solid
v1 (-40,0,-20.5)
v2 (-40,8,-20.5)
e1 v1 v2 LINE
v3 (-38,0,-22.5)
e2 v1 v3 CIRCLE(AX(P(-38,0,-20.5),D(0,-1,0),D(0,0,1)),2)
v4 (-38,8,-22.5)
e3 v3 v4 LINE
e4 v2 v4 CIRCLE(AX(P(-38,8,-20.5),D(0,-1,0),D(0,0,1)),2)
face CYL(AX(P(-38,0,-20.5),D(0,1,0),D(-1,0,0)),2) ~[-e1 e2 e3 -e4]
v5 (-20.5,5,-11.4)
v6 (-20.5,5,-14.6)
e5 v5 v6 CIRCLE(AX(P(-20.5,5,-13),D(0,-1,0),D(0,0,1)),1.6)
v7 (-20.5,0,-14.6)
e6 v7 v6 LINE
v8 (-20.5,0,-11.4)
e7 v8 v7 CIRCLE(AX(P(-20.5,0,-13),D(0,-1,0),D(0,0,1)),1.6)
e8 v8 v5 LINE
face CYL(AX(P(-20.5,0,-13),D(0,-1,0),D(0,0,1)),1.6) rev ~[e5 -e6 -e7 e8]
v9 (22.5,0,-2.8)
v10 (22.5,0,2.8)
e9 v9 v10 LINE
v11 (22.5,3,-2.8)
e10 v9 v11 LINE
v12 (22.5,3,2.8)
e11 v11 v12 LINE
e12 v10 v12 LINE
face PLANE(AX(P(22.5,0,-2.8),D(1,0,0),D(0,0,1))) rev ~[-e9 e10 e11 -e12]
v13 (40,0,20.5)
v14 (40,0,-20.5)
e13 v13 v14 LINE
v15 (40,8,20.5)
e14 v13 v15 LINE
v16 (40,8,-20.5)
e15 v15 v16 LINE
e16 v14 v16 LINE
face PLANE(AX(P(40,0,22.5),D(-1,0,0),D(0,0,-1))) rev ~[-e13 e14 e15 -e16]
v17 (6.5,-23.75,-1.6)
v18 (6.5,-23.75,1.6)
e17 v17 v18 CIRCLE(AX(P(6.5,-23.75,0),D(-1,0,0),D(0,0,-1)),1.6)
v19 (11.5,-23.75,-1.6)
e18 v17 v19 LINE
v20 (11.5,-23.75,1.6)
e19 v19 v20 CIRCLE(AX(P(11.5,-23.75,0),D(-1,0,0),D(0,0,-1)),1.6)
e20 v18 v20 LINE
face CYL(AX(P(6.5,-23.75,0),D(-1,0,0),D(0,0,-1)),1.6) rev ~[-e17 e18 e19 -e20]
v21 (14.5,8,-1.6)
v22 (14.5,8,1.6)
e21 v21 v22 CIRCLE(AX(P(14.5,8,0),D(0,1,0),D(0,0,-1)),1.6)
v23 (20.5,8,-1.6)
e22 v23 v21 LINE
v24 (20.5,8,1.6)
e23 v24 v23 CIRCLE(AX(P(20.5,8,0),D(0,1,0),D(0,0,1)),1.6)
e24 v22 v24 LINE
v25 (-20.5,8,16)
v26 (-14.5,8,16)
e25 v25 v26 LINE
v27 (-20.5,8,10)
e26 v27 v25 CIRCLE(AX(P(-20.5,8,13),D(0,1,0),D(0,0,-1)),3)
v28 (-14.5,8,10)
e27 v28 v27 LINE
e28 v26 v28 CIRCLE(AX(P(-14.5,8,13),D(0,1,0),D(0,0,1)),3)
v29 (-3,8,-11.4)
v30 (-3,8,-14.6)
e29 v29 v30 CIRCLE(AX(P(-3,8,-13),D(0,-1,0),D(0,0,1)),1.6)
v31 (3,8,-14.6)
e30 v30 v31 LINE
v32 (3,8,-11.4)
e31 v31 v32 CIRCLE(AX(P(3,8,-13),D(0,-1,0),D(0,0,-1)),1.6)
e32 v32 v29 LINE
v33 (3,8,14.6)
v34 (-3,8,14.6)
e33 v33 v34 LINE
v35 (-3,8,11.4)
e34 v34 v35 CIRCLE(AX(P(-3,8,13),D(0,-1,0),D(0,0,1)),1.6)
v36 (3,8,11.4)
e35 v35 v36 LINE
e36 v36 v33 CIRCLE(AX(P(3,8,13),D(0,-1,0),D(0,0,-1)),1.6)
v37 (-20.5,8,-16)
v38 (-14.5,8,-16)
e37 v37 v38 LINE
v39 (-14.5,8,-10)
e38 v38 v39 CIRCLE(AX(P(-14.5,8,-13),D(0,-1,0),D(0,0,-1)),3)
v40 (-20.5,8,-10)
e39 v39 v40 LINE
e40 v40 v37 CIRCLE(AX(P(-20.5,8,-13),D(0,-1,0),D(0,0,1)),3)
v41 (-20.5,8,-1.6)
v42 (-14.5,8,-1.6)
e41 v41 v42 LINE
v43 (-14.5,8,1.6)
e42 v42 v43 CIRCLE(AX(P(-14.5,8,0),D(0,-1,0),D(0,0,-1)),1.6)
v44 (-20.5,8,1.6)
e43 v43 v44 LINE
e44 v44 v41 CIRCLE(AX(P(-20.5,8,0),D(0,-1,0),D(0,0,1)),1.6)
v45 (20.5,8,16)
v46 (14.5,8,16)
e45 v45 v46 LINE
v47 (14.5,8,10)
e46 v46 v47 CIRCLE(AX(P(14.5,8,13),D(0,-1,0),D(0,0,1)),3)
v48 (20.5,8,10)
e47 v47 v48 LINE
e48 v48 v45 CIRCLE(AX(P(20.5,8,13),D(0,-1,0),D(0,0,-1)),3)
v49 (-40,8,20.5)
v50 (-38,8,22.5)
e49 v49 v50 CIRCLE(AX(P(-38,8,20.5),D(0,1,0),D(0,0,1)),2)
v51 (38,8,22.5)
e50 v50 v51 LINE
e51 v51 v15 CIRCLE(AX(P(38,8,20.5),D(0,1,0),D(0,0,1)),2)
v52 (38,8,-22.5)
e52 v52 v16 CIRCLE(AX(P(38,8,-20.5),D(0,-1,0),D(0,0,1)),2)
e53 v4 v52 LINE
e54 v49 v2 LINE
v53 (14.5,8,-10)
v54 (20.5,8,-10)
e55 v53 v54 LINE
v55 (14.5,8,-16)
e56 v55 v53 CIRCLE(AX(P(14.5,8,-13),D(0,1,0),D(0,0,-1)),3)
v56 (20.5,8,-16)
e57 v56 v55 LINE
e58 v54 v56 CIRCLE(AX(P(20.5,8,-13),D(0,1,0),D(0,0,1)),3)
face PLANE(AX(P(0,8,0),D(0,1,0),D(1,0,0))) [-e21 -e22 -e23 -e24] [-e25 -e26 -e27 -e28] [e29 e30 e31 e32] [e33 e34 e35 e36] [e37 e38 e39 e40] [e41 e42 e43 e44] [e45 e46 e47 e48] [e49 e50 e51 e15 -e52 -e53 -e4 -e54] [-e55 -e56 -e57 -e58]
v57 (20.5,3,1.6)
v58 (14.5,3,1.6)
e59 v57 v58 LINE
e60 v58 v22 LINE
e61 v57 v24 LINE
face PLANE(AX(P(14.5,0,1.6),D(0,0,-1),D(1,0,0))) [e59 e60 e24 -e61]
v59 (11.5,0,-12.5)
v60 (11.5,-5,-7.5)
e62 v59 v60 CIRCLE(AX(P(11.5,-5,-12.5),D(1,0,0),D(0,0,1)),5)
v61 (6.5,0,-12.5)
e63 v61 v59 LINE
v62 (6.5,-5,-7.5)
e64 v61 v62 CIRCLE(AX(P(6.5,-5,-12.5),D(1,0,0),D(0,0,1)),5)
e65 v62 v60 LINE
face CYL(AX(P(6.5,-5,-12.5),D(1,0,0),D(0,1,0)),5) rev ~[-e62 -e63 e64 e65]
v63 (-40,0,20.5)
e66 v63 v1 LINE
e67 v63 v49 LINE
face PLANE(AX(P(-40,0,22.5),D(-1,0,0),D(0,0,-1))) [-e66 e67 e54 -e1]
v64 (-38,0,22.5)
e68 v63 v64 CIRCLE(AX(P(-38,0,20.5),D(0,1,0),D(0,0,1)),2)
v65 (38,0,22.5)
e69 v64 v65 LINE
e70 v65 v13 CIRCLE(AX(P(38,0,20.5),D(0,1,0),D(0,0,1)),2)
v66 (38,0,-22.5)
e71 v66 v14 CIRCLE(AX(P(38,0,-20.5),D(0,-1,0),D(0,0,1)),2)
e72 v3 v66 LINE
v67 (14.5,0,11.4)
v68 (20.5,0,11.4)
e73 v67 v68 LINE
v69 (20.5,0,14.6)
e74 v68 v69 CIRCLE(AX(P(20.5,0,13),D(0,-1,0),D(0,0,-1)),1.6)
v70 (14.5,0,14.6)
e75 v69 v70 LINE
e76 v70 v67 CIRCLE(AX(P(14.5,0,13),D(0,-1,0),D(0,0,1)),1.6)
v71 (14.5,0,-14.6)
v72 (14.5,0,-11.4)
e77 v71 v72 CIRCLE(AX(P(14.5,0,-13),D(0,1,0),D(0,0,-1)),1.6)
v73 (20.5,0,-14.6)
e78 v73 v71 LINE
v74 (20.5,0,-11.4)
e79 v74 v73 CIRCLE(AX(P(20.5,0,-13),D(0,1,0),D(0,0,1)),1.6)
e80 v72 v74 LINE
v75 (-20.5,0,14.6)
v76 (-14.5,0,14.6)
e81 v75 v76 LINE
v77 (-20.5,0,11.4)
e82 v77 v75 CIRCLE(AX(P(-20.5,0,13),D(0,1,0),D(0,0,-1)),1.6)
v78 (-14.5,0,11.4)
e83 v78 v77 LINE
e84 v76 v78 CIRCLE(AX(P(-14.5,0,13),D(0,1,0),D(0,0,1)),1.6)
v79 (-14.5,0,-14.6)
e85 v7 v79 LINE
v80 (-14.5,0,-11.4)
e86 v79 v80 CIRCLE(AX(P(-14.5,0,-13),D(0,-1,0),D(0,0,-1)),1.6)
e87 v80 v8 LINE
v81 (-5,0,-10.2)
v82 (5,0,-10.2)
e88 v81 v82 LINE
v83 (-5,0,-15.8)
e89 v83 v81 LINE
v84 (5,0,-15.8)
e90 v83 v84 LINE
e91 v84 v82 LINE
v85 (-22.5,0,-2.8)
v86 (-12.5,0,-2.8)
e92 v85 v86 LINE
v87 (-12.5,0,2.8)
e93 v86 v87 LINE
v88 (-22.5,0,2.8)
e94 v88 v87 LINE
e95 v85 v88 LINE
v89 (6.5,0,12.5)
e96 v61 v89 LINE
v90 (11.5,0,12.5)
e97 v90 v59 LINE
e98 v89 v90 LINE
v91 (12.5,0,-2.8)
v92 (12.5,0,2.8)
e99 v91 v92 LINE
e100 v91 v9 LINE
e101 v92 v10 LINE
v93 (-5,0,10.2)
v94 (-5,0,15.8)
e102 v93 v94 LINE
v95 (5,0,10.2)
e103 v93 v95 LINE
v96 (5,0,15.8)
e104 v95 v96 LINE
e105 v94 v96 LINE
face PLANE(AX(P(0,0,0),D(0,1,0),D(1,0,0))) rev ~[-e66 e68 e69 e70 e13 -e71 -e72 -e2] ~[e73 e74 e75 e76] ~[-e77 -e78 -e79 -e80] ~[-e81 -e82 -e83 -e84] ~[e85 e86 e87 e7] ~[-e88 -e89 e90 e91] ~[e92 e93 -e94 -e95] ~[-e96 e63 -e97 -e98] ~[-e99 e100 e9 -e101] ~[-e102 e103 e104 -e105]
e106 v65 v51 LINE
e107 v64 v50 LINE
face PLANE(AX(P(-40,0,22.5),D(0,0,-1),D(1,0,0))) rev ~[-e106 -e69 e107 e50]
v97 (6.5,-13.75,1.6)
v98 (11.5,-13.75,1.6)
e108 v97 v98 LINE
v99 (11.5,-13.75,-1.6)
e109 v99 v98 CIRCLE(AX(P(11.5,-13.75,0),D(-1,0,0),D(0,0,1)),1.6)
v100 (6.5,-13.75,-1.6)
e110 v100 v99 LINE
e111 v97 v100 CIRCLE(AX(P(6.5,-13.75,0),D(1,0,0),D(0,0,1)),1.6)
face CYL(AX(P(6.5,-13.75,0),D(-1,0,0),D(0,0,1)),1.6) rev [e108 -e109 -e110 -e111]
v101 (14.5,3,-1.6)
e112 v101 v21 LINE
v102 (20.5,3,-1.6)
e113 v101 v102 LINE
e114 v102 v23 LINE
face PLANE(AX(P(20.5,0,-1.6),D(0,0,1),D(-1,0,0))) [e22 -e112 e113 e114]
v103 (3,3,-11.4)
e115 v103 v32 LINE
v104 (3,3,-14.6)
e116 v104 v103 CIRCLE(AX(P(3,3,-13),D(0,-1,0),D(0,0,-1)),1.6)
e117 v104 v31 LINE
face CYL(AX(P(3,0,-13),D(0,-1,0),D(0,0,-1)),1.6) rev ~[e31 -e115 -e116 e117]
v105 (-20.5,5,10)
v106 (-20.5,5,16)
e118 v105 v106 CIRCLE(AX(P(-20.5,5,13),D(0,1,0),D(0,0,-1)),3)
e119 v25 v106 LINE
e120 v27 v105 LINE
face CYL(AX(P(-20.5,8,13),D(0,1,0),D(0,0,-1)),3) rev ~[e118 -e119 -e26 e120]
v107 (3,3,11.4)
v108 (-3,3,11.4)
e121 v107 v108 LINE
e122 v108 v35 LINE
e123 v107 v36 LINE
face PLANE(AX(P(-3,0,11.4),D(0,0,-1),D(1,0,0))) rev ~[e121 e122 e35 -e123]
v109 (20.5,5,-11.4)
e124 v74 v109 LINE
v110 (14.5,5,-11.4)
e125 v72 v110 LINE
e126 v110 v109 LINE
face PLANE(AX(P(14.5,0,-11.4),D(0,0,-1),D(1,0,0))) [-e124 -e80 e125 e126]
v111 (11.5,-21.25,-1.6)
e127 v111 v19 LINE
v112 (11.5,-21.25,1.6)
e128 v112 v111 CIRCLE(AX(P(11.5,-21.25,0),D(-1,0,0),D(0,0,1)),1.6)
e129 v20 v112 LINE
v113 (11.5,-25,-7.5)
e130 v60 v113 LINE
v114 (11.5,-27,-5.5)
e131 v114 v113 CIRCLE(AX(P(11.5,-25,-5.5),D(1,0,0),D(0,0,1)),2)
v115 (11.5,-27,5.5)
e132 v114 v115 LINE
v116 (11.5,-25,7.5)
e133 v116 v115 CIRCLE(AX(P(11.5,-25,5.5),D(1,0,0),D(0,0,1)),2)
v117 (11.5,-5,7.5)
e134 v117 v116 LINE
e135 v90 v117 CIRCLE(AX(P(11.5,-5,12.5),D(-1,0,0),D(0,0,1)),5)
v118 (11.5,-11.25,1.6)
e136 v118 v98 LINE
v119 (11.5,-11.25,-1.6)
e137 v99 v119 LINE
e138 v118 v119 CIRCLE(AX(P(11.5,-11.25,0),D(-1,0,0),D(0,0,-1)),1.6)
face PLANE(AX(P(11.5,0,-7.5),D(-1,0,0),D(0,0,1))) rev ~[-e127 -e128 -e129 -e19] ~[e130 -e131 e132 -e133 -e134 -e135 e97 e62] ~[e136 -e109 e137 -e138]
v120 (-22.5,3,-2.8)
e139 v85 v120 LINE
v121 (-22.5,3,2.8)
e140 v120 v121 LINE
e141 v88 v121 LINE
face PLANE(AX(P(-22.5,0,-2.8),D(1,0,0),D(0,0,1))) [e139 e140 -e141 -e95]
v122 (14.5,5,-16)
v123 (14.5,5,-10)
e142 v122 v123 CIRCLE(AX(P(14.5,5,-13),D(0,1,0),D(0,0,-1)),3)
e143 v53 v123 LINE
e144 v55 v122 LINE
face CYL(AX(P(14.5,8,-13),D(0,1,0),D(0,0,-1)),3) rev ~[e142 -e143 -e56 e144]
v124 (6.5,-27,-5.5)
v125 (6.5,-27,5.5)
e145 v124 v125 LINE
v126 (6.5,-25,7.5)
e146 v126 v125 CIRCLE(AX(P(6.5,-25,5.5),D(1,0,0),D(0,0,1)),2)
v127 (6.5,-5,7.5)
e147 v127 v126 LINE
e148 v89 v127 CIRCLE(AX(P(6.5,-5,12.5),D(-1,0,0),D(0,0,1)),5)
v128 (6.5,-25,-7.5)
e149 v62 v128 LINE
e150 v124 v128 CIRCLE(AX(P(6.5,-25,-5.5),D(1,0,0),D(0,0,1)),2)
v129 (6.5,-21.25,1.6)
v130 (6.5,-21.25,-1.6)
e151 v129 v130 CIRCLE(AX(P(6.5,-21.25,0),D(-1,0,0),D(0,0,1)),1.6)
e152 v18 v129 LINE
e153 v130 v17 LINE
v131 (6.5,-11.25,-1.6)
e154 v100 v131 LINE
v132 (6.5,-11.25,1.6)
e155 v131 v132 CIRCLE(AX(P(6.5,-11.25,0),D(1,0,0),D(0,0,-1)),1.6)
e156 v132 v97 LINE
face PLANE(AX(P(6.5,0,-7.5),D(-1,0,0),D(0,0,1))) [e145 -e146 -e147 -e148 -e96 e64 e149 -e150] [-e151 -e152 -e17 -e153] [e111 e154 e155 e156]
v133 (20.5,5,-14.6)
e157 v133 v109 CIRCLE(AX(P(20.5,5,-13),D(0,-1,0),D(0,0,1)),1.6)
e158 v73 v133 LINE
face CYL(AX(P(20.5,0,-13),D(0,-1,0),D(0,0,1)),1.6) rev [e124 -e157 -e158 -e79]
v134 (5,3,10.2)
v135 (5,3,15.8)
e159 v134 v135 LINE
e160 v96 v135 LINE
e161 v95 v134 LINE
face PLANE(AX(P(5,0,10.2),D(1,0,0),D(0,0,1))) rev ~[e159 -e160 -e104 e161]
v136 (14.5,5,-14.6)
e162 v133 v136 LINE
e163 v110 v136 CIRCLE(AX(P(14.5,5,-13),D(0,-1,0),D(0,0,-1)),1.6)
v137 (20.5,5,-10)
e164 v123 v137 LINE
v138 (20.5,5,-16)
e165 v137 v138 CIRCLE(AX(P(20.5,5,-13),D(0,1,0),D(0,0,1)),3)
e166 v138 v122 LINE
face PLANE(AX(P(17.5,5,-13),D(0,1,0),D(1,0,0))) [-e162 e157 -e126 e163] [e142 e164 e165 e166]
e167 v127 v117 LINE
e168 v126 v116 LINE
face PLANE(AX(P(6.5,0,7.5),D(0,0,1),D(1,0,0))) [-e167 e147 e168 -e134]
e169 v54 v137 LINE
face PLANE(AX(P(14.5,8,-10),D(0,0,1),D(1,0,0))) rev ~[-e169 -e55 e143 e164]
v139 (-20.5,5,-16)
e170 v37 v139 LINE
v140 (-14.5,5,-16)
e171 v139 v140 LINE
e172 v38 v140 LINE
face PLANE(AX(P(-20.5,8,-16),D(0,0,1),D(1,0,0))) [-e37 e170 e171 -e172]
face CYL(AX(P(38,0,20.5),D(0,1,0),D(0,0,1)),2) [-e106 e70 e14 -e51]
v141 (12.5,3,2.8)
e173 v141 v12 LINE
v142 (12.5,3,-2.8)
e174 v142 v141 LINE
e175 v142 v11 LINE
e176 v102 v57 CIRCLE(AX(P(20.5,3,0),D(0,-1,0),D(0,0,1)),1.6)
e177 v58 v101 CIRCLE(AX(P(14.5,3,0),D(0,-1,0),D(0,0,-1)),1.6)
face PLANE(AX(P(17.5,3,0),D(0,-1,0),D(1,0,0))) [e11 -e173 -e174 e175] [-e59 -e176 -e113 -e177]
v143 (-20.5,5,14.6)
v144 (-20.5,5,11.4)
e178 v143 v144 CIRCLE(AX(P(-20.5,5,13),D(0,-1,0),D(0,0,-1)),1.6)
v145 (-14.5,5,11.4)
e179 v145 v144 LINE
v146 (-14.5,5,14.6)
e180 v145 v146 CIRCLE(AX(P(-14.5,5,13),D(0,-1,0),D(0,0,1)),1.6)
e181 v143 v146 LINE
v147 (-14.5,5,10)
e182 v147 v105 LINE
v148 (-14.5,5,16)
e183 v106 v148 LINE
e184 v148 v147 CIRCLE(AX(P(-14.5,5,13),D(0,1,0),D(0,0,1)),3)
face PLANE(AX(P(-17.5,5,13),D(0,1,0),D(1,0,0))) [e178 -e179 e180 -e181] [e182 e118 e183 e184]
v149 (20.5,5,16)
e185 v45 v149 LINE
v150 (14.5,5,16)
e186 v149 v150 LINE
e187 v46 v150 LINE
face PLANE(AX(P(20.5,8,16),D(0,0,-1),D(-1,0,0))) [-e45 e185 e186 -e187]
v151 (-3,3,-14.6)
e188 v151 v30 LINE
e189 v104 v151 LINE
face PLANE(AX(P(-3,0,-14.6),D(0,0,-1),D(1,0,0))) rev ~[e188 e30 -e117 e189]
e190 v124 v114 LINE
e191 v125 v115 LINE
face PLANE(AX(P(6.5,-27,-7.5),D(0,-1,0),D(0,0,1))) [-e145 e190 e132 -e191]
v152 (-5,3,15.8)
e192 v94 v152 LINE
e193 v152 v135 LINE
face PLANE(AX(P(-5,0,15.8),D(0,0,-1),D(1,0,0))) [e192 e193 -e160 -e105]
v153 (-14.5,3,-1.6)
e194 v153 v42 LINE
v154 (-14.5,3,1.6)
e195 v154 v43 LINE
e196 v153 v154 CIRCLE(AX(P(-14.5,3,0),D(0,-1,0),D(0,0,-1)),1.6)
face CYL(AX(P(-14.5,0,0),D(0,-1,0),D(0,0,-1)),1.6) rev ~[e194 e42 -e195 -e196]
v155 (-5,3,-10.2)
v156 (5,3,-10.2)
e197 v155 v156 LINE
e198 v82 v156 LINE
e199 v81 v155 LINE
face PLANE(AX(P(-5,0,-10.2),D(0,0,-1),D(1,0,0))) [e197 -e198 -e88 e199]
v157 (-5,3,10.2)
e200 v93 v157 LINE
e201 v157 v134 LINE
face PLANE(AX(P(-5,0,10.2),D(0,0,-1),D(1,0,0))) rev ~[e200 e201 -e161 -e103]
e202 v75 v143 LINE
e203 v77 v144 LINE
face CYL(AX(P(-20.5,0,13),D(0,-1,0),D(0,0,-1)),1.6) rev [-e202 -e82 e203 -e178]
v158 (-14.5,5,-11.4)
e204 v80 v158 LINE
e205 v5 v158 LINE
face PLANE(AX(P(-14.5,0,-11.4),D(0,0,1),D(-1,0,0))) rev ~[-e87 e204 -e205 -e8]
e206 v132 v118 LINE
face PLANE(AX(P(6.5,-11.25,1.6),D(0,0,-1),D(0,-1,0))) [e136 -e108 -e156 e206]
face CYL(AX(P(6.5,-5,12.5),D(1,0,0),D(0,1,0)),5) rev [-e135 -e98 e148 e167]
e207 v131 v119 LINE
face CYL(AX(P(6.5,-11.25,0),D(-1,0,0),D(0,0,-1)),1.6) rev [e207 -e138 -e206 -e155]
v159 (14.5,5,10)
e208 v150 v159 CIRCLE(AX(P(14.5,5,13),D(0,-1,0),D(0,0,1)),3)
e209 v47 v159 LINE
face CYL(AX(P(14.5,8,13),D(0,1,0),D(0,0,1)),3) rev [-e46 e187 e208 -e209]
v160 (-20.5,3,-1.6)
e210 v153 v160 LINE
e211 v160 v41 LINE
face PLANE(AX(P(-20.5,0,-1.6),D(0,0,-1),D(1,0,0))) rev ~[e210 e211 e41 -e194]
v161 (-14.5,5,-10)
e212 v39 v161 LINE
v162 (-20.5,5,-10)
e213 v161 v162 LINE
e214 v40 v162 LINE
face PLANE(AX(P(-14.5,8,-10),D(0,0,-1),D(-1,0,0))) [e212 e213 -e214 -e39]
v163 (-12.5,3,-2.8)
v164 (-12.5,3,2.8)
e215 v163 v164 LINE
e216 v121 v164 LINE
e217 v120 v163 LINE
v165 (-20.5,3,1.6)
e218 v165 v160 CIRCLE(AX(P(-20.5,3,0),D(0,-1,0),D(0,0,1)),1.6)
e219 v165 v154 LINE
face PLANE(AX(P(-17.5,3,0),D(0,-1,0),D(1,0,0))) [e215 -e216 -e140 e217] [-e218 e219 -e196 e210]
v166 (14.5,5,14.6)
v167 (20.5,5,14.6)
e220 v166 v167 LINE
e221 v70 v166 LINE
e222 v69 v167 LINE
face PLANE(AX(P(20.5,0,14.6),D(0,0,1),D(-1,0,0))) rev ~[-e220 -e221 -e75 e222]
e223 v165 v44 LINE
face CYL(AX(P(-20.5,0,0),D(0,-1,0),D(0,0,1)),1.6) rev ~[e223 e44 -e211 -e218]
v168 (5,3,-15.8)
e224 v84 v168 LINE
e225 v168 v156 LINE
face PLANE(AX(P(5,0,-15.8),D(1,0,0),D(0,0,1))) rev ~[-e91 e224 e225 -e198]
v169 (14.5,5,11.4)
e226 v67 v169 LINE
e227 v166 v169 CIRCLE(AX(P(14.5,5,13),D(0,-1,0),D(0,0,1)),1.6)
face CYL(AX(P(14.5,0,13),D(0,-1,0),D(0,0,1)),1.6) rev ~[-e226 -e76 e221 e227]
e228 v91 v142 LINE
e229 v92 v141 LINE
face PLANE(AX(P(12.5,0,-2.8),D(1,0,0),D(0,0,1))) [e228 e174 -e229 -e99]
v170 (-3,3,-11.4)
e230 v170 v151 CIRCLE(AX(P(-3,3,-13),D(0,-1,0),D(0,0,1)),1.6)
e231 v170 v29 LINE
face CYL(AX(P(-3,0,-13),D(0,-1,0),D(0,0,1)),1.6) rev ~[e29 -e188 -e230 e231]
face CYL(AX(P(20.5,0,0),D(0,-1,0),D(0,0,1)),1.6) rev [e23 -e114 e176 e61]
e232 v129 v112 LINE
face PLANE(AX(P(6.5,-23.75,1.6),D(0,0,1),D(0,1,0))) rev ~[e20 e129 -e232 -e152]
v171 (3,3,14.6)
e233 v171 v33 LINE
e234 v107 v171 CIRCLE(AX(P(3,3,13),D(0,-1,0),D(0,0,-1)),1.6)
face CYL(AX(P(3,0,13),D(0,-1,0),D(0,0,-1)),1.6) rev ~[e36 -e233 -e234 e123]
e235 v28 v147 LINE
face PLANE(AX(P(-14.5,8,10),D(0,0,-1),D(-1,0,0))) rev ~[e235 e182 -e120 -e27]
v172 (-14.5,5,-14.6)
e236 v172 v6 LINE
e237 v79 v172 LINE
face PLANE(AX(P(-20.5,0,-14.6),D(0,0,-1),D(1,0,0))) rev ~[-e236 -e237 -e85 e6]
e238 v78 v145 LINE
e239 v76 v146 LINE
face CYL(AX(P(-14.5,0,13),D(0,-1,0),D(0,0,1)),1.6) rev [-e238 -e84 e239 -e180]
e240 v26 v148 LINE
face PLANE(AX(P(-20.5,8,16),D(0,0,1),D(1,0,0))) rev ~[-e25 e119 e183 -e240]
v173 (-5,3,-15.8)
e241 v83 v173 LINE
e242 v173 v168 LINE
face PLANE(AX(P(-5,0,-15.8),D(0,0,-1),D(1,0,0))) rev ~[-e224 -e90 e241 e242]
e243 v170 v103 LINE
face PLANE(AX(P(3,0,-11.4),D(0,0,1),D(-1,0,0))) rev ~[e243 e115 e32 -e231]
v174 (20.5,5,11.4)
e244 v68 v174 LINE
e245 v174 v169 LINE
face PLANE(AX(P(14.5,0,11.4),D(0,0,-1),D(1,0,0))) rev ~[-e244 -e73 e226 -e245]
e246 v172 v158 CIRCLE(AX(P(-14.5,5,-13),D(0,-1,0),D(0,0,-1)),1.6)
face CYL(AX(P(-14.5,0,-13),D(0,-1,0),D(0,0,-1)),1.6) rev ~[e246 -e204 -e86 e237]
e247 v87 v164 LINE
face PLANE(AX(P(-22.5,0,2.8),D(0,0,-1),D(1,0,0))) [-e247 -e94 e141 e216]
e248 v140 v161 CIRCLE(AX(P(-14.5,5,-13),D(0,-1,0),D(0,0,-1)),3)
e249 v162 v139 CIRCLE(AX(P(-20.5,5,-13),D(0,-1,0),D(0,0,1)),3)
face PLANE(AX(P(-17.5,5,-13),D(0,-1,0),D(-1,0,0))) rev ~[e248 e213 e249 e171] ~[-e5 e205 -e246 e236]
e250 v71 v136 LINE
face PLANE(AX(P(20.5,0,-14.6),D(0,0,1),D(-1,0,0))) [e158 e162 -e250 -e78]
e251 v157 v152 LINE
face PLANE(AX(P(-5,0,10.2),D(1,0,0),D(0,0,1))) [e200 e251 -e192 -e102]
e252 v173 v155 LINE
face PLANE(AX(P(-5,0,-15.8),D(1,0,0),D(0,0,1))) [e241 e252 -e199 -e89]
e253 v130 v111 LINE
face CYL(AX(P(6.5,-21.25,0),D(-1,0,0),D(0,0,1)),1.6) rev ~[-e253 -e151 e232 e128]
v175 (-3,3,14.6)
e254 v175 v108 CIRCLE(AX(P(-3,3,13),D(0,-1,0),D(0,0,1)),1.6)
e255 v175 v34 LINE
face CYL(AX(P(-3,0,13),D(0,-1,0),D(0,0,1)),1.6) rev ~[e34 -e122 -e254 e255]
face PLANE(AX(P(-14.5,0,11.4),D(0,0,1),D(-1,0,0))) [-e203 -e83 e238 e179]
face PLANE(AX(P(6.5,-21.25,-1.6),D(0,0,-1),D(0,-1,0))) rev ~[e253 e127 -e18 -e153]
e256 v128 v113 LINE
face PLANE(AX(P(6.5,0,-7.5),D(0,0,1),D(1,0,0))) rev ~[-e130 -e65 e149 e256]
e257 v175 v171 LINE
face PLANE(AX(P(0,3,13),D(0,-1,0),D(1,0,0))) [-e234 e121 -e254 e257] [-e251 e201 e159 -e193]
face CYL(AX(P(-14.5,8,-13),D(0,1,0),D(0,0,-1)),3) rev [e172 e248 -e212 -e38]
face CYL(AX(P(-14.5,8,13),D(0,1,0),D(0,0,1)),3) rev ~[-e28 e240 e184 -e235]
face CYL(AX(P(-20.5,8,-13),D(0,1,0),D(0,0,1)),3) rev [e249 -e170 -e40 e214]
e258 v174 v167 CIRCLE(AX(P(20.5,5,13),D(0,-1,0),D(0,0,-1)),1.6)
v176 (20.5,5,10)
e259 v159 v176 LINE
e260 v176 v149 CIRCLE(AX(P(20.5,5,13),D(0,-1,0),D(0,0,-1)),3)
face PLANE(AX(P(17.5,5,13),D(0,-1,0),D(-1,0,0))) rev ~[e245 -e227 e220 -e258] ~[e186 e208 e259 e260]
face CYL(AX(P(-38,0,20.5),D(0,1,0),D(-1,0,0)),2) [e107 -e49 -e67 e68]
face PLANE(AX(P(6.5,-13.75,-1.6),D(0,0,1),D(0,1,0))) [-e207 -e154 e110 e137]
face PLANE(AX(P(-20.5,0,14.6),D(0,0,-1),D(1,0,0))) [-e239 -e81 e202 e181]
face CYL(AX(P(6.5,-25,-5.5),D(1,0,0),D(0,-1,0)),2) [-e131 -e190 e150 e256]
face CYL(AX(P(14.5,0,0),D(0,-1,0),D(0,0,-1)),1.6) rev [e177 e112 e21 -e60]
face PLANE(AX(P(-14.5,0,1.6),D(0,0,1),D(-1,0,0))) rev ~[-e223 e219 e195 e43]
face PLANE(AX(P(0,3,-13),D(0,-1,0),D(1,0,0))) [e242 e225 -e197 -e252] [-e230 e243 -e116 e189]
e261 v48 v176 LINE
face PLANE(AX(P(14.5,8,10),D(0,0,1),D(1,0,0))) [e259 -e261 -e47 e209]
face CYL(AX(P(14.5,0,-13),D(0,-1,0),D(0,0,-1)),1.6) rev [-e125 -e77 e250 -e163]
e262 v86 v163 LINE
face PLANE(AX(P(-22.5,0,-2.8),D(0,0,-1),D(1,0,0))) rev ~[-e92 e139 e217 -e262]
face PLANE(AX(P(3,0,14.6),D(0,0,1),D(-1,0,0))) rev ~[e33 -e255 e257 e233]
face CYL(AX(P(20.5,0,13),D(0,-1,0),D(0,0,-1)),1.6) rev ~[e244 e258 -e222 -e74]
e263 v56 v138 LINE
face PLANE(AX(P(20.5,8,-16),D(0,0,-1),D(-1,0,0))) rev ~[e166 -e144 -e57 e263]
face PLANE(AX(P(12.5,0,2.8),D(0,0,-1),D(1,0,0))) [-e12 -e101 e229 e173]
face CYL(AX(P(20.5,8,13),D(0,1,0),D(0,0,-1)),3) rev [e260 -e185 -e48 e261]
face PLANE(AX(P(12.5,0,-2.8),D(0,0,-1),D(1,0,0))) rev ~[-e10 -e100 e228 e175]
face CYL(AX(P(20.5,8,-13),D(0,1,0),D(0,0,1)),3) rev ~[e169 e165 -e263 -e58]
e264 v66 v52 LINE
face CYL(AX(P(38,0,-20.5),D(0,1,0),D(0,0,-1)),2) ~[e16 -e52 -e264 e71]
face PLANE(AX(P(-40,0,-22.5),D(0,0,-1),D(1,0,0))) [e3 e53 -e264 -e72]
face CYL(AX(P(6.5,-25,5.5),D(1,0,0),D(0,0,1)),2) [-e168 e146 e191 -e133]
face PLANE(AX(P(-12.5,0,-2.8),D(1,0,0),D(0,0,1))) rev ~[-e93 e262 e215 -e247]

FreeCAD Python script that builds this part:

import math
import FreeCAD as App
import Part
import Sketcher


def edges_at(feature, points):
    """Names of the edges that pass closest to the given points."""
    edges = feature.Shape.Edges
    near = lambda p: min(range(len(edges)), key=lambda i: edges[i].distToShape(Part.Vertex(*p))[0])
    return sorted({f"Edge{near(p) + 1}" for p in points})

doc = App.newDocument("Part")
body = doc.addObject("PartDesign::Body", "Body")

sketch1 = body.newObject("Sketcher::SketchObject", "Sketch")
sketch1.AttachmentSupport = (doc.getObject("XZ_Plane"), [""])
sketch1.MapMode = "FlatFace"
sketch1.addGeometry([
    Part.LineSegment(App.Vector(-40, -22.5, 0), App.Vector(-40, 22.5, 0)),
    Part.LineSegment(App.Vector(-40, 22.5, 0), App.Vector(40, 22.5, 0)),
    Part.LineSegment(App.Vector(40, 22.5, 0), App.Vector(40, -22.5, 0)),
    Part.LineSegment(App.Vector(40, -22.5, 0), App.Vector(-40, -22.5, 0)),
    Part.LineSegment(App.Vector(-14.5, 14.6, 0), App.Vector(-20.5, 14.6, 0)),
    Part.ArcOfCircle(Part.Circle(App.Vector(-20.5, 13, 0), App.Vector(0, 0, 1), 1.6), math.radians(90), math.radians(270)),
    Part.LineSegment(App.Vector(-20.5, 11.4, 0), App.Vector(-14.5, 11.4, 0)),
    Part.ArcOfCircle(Part.Circle(App.Vector(-14.5, 13, 0), App.Vector(0, 0, 1), 1.6), math.radians(-90), math.radians(90)),
    Part.ArcOfCircle(Part.Circle(App.Vector(-20.5, 0, 0), App.Vector(0, 0, 1), 1.6), math.radians(90), math.radians(270)),
    Part.LineSegment(App.Vector(-20.5, -1.6, 0), App.Vector(-14.5, -1.6, 0)),
    Part.ArcOfCircle(Part.Circle(App.Vector(-14.5, 0, 0), App.Vector(0, 0, 1), 1.6), math.radians(-90), math.radians(90)),
    Part.LineSegment(App.Vector(-14.5, 1.6, 0), App.Vector(-20.5, 1.6, 0)),
    Part.ArcOfCircle(Part.Circle(App.Vector(-3, 13, 0), App.Vector(0, 0, 1), 1.6), math.radians(90), math.radians(270)),
    Part.LineSegment(App.Vector(-3, 11.4, 0), App.Vector(3, 11.4, 0)),
    Part.ArcOfCircle(Part.Circle(App.Vector(3, 13, 0), App.Vector(0, 0, 1), 1.6), math.radians(-90), math.radians(90)),
    Part.LineSegment(App.Vector(3, 14.6, 0), App.Vector(-3, 14.6, 0)),
    Part.ArcOfCircle(Part.Circle(App.Vector(20.5, 13, 0), App.Vector(0, 0, 1), 1.6), math.radians(-90), math.radians(90)),
    Part.LineSegment(App.Vector(20.5, 14.6, 0), App.Vector(14.5, 14.6, 0)),
    Part.ArcOfCircle(Part.Circle(App.Vector(14.5, 13, 0), App.Vector(0, 0, 1), 1.6), math.radians(90), math.radians(270)),
    Part.LineSegment(App.Vector(14.5, 11.4, 0), App.Vector(20.5, 11.4, 0)),
    Part.LineSegment(App.Vector(14.5, -1.6, 0), App.Vector(20.5, -1.6, 0)),
    Part.ArcOfCircle(Part.Circle(App.Vector(20.5, 0, 0), App.Vector(0, 0, 1), 1.6), math.radians(-90), math.radians(90)),
    Part.LineSegment(App.Vector(20.5, 1.6, 0), App.Vector(14.5, 1.6, 0)),
    Part.ArcOfCircle(Part.Circle(App.Vector(14.5, 0, 0), App.Vector(0, 0, 1), 1.6), math.radians(90), math.radians(270)),
    Part.ArcOfCircle(Part.Circle(App.Vector(-20.5, -13, 0), App.Vector(0, 0, 1), 1.6), math.radians(90), math.radians(270)),
    Part.LineSegment(App.Vector(-20.5, -14.6, 0), App.Vector(-14.5, -14.6, 0)),
    Part.ArcOfCircle(Part.Circle(App.Vector(-14.5, -13, 0), App.Vector(0, 0, 1), 1.6), math.radians(-90), math.radians(90)),
    Part.LineSegment(App.Vector(-14.5, -11.4, 0), App.Vector(-20.5, -11.4, 0)),
    Part.ArcOfCircle(Part.Circle(App.Vector(-3, -13, 0), App.Vector(0, 0, 1), 1.6), math.radians(90), math.radians(270)),
    Part.LineSegment(App.Vector(-3, -14.6, 0), App.Vector(3, -14.6, 0)),
    Part.ArcOfCircle(Part.Circle(App.Vector(3, -13, 0), App.Vector(0, 0, 1), 1.6), math.radians(-90), math.radians(90)),
    Part.LineSegment(App.Vector(3, -11.4, 0), App.Vector(-3, -11.4, 0)),
    Part.LineSegment(App.Vector(14.5, -14.6, 0), App.Vector(20.5, -14.6, 0)),
    Part.ArcOfCircle(Part.Circle(App.Vector(20.5, -13, 0), App.Vector(0, 0, 1), 1.6), math.radians(-90), math.radians(90)),
    Part.LineSegment(App.Vector(20.5, -11.4, 0), App.Vector(14.5, -11.4, 0)),
    Part.ArcOfCircle(Part.Circle(App.Vector(14.5, -13, 0), App.Vector(0, 0, 1), 1.6), math.radians(90), math.radians(270)),
], False)
sketch1.addConstraint([
    Sketcher.Constraint("Coincident", 0, 2, 1, 1),
    Sketcher.Constraint("Coincident", 1, 2, 2, 1),
    Sketcher.Constraint("Coincident", 2, 2, 3, 1),
    Sketcher.Constraint("Coincident", 3, 2, 0, 1),
    Sketcher.Constraint("Tangent", 4, 2, 5, 1),
    Sketcher.Constraint("Tangent", 5, 2, 6, 1),
    Sketcher.Constraint("Tangent", 6, 2, 7, 1),
    Sketcher.Constraint("Tangent", 7, 2, 4, 1),
    Sketcher.Constraint("Tangent", 8, 2, 9, 1),
    Sketcher.Constraint("Tangent", 9, 2, 10, 1),
    Sketcher.Constraint("Tangent", 10, 2, 11, 1),
    Sketcher.Constraint("Tangent", 11, 2, 8, 1),
    Sketcher.Constraint("Tangent", 12, 2, 13, 1),
    Sketcher.Constraint("Tangent", 13, 2, 14, 1),
    Sketcher.Constraint("Tangent", 14, 2, 15, 1),
    Sketcher.Constraint("Tangent", 15, 2, 12, 1),
    Sketcher.Constraint("Tangent", 16, 2, 17, 1),
    Sketcher.Constraint("Tangent", 17, 2, 18, 1),
    Sketcher.Constraint("Tangent", 18, 2, 19, 1),
    Sketcher.Constraint("Tangent", 19, 2, 16, 1),
    Sketcher.Constraint("Tangent", 20, 2, 21, 1),
    Sketcher.Constraint("Tangent", 21, 2, 22, 1),
    Sketcher.Constraint("Tangent", 22, 2, 23, 1),
    Sketcher.Constraint("Tangent", 23, 2, 20, 1),
    Sketcher.Constraint("Tangent", 24, 2, 25, 1),
    Sketcher.Constraint("Tangent", 25, 2, 26, 1),
    Sketcher.Constraint("Tangent", 26, 2, 27, 1),
    Sketcher.Constraint("Tangent", 27, 2, 24, 1),
    Sketcher.Constraint("Tangent", 28, 2, 29, 1),
    Sketcher.Constraint("Tangent", 29, 2, 30, 1),
    Sketcher.Constraint("Tangent", 30, 2, 31, 1),
    Sketcher.Constraint("Tangent", 31, 2, 28, 1),
    Sketcher.Constraint("Tangent", 32, 2, 33, 1),
    Sketcher.Constraint("Tangent", 33, 2, 34, 1),
    Sketcher.Constraint("Tangent", 34, 2, 35, 1),
    Sketcher.Constraint("Tangent", 35, 2, 32, 1),
    Sketcher.Constraint("Vertical", 0),
    Sketcher.Constraint("Horizontal", 1),
    Sketcher.Constraint("Vertical", 2),
    Sketcher.Constraint("Horizontal", 3),
    Sketcher.Constraint("Horizontal", 4),
    Sketcher.Constraint("Horizontal", 6),
    Sketcher.Constraint("Horizontal", 9),
    Sketcher.Constraint("Horizontal", 11),
    Sketcher.Constraint("Horizontal", 13),
    Sketcher.Constraint("Horizontal", 15),
    Sketcher.Constraint("Horizontal", 17),
    Sketcher.Constraint("Horizontal", 19),
    Sketcher.Constraint("Horizontal", 20),
    Sketcher.Constraint("Horizontal", 22),
    Sketcher.Constraint("Horizontal", 25),
    Sketcher.Constraint("Horizontal", 27),
    Sketcher.Constraint("Horizontal", 29),
    Sketcher.Constraint("Horizontal", 31),
    Sketcher.Constraint("Horizontal", 32),
    Sketcher.Constraint("Horizontal", 34),
    Sketcher.Constraint("Equal", 7, 8),
    Sketcher.Constraint("Equal", 10, 12),
    Sketcher.Constraint("Equal", 14, 16),
    Sketcher.Constraint("Equal", 18, 21),
    Sketcher.Constraint("Equal", 23, 24),
    Sketcher.Constraint("Equal", 26, 28),
    Sketcher.Constraint("Equal", 30, 33),
    Sketcher.Constraint("Symmetric", 8, 3, 21, 3, -1, 1),
    Sketcher.Constraint("Symmetric", 16, 3, 24, 3, -1, 1),
    Sketcher.Constraint("Symmetric", 14, 3, 28, 3, -1, 1),
    Sketcher.Constraint("Symmetric", 5, 3, 33, 3, -1, 1),
    Sketcher.Constraint("Symmetric", 0, 2, 2, 2, -1, 1),
    Sketcher.Constraint("Symmetric", 5, 3, 16, 3, -2),
    Sketcher.Constraint("Symmetric", 10, 3, 23, 3, -2),
    Sketcher.Constraint("Horizontal", 7, 3, 12, 3),
    Sketcher.Constraint("Vertical", 5, 3, 8, 3),
    Sketcher.Constraint("Vertical", 7, 3, 10, 3),
    Sketcher.Constraint("Vertical", 18, 3, 23, 3),
    Sketcher.Constraint("Vertical", 10, 3, 26, 3),
    Sketcher.Constraint("Vertical", 12, 3, 28, 3),
    Sketcher.Constraint("Vertical", 14, 3, 30, 3),
    Sketcher.Constraint("Vertical", 23, 3, 35, 3),
    Sketcher.Constraint("Equal", 11, 13),
    Sketcher.Constraint("Radius", 5, 1.6),
    Sketcher.Constraint("DistanceX", 1, 1, 1, 2, 80.0),
    Sketcher.Constraint("DistanceX", 4, 2, 4, 1, 6.0),
    Sketcher.Constraint("DistanceY", 0, 1, 0, 2, 45.0),
    Sketcher.Constraint("DistanceY", -1, 1, 5, 3, 13.0),
    Sketcher.Constraint("DistanceX", 7, 3, 16, 3, 35.0),
])
pad1 = body.newObject("PartDesign::Pad", "Pad")
pad1.Profile = sketch1
pad1.Length = 8
pad1.Reversed = True

sketch2 = body.newObject("Sketcher::SketchObject", "Sketch001")
sketch2.AttachmentSupport = (doc.getObject("XZ_Plane"), [""])
sketch2.MapMode = "FlatFace"
sketch2.AttachmentOffset = App.Placement(App.Vector(0, 0, -8), App.Rotation())
sketch2.addGeometry([
    Part.LineSegment(App.Vector(-14.5, -16, 0), App.Vector(-20.5, -16, 0)),
    Part.ArcOfCircle(Part.Circle(App.Vector(-20.5, -13, 0), App.Vector(0, 0, 1), 3), math.radians(90), math.radians(270)),
    Part.LineSegment(App.Vector(-20.5, -10, 0), App.Vector(-14.5, -10, 0)),
    Part.ArcOfCircle(Part.Circle(App.Vector(-14.5, -13, 0), App.Vector(0, 0, 1), 3), math.radians(-90), math.radians(90)),
    Part.LineSegment(App.Vector(20.5, -16, 0), App.Vector(14.5, -16, 0)),
    Part.ArcOfCircle(Part.Circle(App.Vector(14.5, -13, 0), App.Vector(0, 0, 1), 3), math.radians(90), math.radians(270)),
    Part.LineSegment(App.Vector(14.5, -10, 0), App.Vector(20.5, -10, 0)),
    Part.ArcOfCircle(Part.Circle(App.Vector(20.5, -13, 0), App.Vector(0, 0, 1), 3), math.radians(-90), math.radians(90)),
    Part.LineSegment(App.Vector(14.5, 16, 0), App.Vector(20.5, 16, 0)),
    Part.ArcOfCircle(Part.Circle(App.Vector(20.5, 13, 0), App.Vector(0, 0, 1), 3), math.radians(-90), math.radians(90)),
    Part.LineSegment(App.Vector(20.5, 10, 0), App.Vector(14.5, 10, 0)),
    Part.ArcOfCircle(Part.Circle(App.Vector(14.5, 13, 0), App.Vector(0, 0, 1), 3), math.radians(90), math.radians(270)),
    Part.LineSegment(App.Vector(-20.5, 16, 0), App.Vector(-14.5, 16, 0)),
    Part.ArcOfCircle(Part.Circle(App.Vector(-14.5, 13, 0), App.Vector(0, 0, 1), 3), math.radians(-90), math.radians(90)),
    Part.LineSegment(App.Vector(-14.5, 10, 0), App.Vector(-20.5, 10, 0)),
    Part.ArcOfCircle(Part.Circle(App.Vector(-20.5, 13, 0), App.Vector(0, 0, 1), 3), math.radians(90), math.radians(270)),
], False)
sketch2.addConstraint([
    Sketcher.Constraint("Tangent", 0, 2, 1, 2),
    Sketcher.Constraint("Tangent", 1, 1, 2, 1),
    Sketcher.Constraint("Tangent", 2, 2, 3, 2),
    Sketcher.Constraint("Tangent", 3, 1, 0, 1),
    Sketcher.Constraint("Tangent", 4, 2, 5, 2),
    Sketcher.Constraint("Tangent", 5, 1, 6, 1),
    Sketcher.Constraint("Tangent", 6, 2, 7, 2),
    Sketcher.Constraint("Tangent", 7, 1, 4, 1),
    Sketcher.Constraint("Tangent", 8, 2, 9, 2),
    Sketcher.Constraint("Tangent", 9, 1, 10, 1),
    Sketcher.Constraint("Tangent", 10, 2, 11, 2),
    Sketcher.Constraint("Tangent", 11, 1, 8, 1),
    Sketcher.Constraint("Tangent", 12, 2, 13, 2),
    Sketcher.Constraint("Tangent", 13, 1, 14, 1),
    Sketcher.Constraint("Tangent", 14, 2, 15, 2),
    Sketcher.Constraint("Tangent", 15, 1, 12, 1),
    Sketcher.Constraint("Horizontal", 0),
    Sketcher.Constraint("Horizontal", 2),
    Sketcher.Constraint("Horizontal", 4),
    Sketcher.Constraint("Horizontal", 6),
    Sketcher.Constraint("Horizontal", 8),
    Sketcher.Constraint("Horizontal", 10),
    Sketcher.Constraint("Horizontal", 12),
    Sketcher.Constraint("Horizontal", 14),
    Sketcher.Constraint("Equal", 3, 5),
    Sketcher.Constraint("Equal", 7, 9),
    Sketcher.Constraint("Equal", 11, 13),
    Sketcher.Constraint("Symmetric", 1, 3, 9, 3, -1, 1),
    Sketcher.Constraint("Symmetric", 5, 3, 13, 3, -1, 1),
    Sketcher.Constraint("Symmetric", 3, 3, 5, 3, -2),
    Sketcher.Constraint("Vertical", 7, 3, 9, 3),
    Sketcher.Constraint("Vertical", 5, 3, 11, 3),
    Sketcher.Constraint("Vertical", 1, 3, 15, 3),
    Sketcher.Constraint("Radius", 1, 3.0),
    Sketcher.Constraint("DistanceX", 0, 2, 0, 1, 6.0),
    Sketcher.Constraint("DistanceY", 1, 3, -1, 1, 13.0),
    Sketcher.Constraint("DistanceX", 3, 3, 5, 3, 29.0),
])
pocket1 = body.newObject("PartDesign::Pocket", "Pocket")
pocket1.Profile = sketch2
pocket1.Length = 3
pocket1.Reversed = True

sketch3 = body.newObject("Sketcher::SketchObject", "Sketch002")
sketch3.AttachmentSupport = (doc.getObject("XZ_Plane"), [""])
sketch3.MapMode = "FlatFace"
sketch3.addGeometry([
    Part.LineSegment(App.Vector(6.5, 7.5, 0), App.Vector(6.5, -7.5, 0)),
    Part.LineSegment(App.Vector(6.5, -7.5, 0), App.Vector(11.5, -7.5, 0)),
    Part.LineSegment(App.Vector(11.5, -7.5, 0), App.Vector(11.5, 7.5, 0)),
    Part.LineSegment(App.Vector(11.5, 7.5, 0), App.Vector(6.5, 7.5, 0)),
], False)
sketch3.addConstraint([
    Sketcher.Constraint("Coincident", 0, 2, 1, 1),
    Sketcher.Constraint("Coincident", 1, 2, 2, 1),
    Sketcher.Constraint("Coincident", 2, 2, 3, 1),
    Sketcher.Constraint("Coincident", 3, 2, 0, 1),
    Sketcher.Constraint("Vertical", 0),
    Sketcher.Constraint("Horizontal", 1),
    Sketcher.Constraint("Vertical", 2),
    Sketcher.Constraint("Horizontal", 3),
    Sketcher.Constraint("DistanceX", 1, 1, 1, 2, 5.0),
    Sketcher.Constraint("DistanceY", 0, 2, 0, 1, 15.0),
    Sketcher.Constraint("DistanceX", -1, 1, 0, 2, 6.5),
    Sketcher.Constraint("DistanceY", 0, 2, -1, 1, 7.5),
])
pad2 = body.newObject("PartDesign::Pad", "Pad001")
pad2.Profile = sketch3
pad2.Length = 35

sketch4 = body.newObject("Sketcher::SketchObject", "Sketch003")
sketch4.AttachmentSupport = (doc.getObject("YZ_Plane"), [""])
sketch4.MapMode = "FlatFace"
sketch4.AttachmentOffset = App.Placement(App.Vector(0, 0, 6.5), App.Rotation())
sketch4.addGeometry([
    Part.LineSegment(App.Vector(-13.75, 1.6, 0), App.Vector(-11.25, 1.6, 0)),
    Part.ArcOfCircle(Part.Circle(App.Vector(-11.25, 0, 0), App.Vector(0, 0, 1), 1.6), math.radians(-90), math.radians(90)),
    Part.LineSegment(App.Vector(-11.25, -1.6, 0), App.Vector(-13.75, -1.6, 0)),
    Part.ArcOfCircle(Part.Circle(App.Vector(-13.75, 0, 0), App.Vector(0, 0, 1), 1.6), math.radians(90), math.radians(270)),
    Part.LineSegment(App.Vector(-23.75, 1.6, 0), App.Vector(-21.25, 1.6, 0)),
    Part.ArcOfCircle(Part.Circle(App.Vector(-21.25, 0, 0), App.Vector(0, 0, 1), 1.6), math.radians(-90), math.radians(90)),
    Part.LineSegment(App.Vector(-21.25, -1.6, 0), App.Vector(-23.75, -1.6, 0)),
    Part.ArcOfCircle(Part.Circle(App.Vector(-23.75, 0, 0), App.Vector(0, 0, 1), 1.6), math.radians(90), math.radians(270)),
], False)
sketch4.addConstraint([
    Sketcher.Constraint("Tangent", 0, 2, 1, 2),
    Sketcher.Constraint("Tangent", 1, 1, 2, 1),
    Sketcher.Constraint("Tangent", 2, 2, 3, 2),
    Sketcher.Constraint("Tangent", 3, 1, 0, 1),
    Sketcher.Constraint("Tangent", 4, 2, 5, 2),
    Sketcher.Constraint("Tangent", 5, 1, 6, 1),
    Sketcher.Constraint("Tangent", 6, 2, 7, 2),
    Sketcher.Constraint("Tangent", 7, 1, 4, 1),
    Sketcher.Constraint("Horizontal", 0),
    Sketcher.Constraint("Horizontal", 2),
    Sketcher.Constraint("Horizontal", 4),
    Sketcher.Constraint("Horizontal", 6),
    Sketcher.Constraint("Equal", 3, 5),
    Sketcher.Constraint("PointOnObject", 1, 3, -1),
    Sketcher.Constraint("PointOnObject", 5, 3, -1),
    Sketcher.Constraint("Equal", 2, 4),
    Sketcher.Constraint("Radius", 1, 1.6),
    Sketcher.Constraint("DistanceX", 0, 1, 0, 2, 2.5),
    Sketcher.Constraint("DistanceX", 5, 3, 1, 3, 10.0),
    Sketcher.Constraint("DistanceX", 1, 3, -1, 1, 11.25),
])
pocket2 = body.newObject("PartDesign::Pocket", "Pocket001")
pocket2.Profile = sketch4
pocket2.Type = "ThroughAll"
pocket2.Reversed = True
doc.recompute()

fillet = body.newObject("PartDesign::Fillet", "Fillet")
fillet.Base = (pocket2, edges_at(pocket2, [(9, 0, 7.5), (9, 0, -7.5)]))
fillet.Radius = 5

sketch5 = body.newObject("Sketcher::SketchObject", "Sketch004")
sketch5.AttachmentSupport = (doc.getObject("XZ_Plane"), [""])
sketch5.MapMode = "FlatFace"
sketch5.addGeometry([
    Part.LineSegment(App.Vector(-22.5, 2.8, 0), App.Vector(-22.5, -2.8, 0)),
    Part.LineSegment(App.Vector(-22.5, -2.8, 0), App.Vector(-12.5, -2.8, 0)),
    Part.LineSegment(App.Vector(-12.5, -2.8, 0), App.Vector(-12.5, 2.8, 0)),
    Part.LineSegment(App.Vector(-12.5, 2.8, 0), App.Vector(-22.5, 2.8, 0)),
    Part.LineSegment(App.Vector(12.5, 2.8, 0), App.Vector(12.5, -2.8, 0)),
    Part.LineSegment(App.Vector(12.5, -2.8, 0), App.Vector(22.5, -2.8, 0)),
    Part.LineSegment(App.Vector(22.5, -2.8, 0), App.Vector(22.5, 2.8, 0)),
    Part.LineSegment(App.Vector(22.5, 2.8, 0), App.Vector(12.5, 2.8, 0)),
    Part.LineSegment(App.Vector(-5, 15.8, 0), App.Vector(-5, 10.2, 0)),
    Part.LineSegment(App.Vector(-5, 10.2, 0), App.Vector(5, 10.2, 0)),
    Part.LineSegment(App.Vector(5, 10.2, 0), App.Vector(5, 15.8, 0)),
    Part.LineSegment(App.Vector(5, 15.8, 0), App.Vector(-5, 15.8, 0)),
    Part.LineSegment(App.Vector(-5, -10.2, 0), App.Vector(-5, -15.8, 0)),
    Part.LineSegment(App.Vector(-5, -15.8, 0), App.Vector(5, -15.8, 0)),
    Part.LineSegment(App.Vector(5, -15.8, 0), App.Vector(5, -10.2, 0)),
    Part.LineSegment(App.Vector(5, -10.2, 0), App.Vector(-5, -10.2, 0)),
], False)
sketch5.addConstraint([
    Sketcher.Constraint("Coincident", 0, 2, 1, 1),
    Sketcher.Constraint("Coincident", 1, 2, 2, 1),
    Sketcher.Constraint("Coincident", 2, 2, 3, 1),
    Sketcher.Constraint("Coincident", 3, 2, 0, 1),
    Sketcher.Constraint("Coincident", 4, 2, 5, 1),
    Sketcher.Constraint("Coincident", 5, 2, 6, 1),
    Sketcher.Constraint("Coincident", 6, 2, 7, 1),
    Sketcher.Constraint("Coincident", 7, 2, 4, 1),
    Sketcher.Constraint("Coincident", 8, 2, 9, 1),
    Sketcher.Constraint("Coincident", 9, 2, 10, 1),
    Sketcher.Constraint("Coincident", 10, 2, 11, 1),
    Sketcher.Constraint("Coincident", 11, 2, 8, 1),
    Sketcher.Constraint("Coincident", 12, 2, 13, 1),
    Sketcher.Constraint("Coincident", 13, 2, 14, 1),
    Sketcher.Constraint("Coincident", 14, 2, 15, 1),
    Sketcher.Constraint("Coincident", 15, 2, 12, 1),
    Sketcher.Constraint("Vertical", 0),
    Sketcher.Constraint("Horizontal", 1),
    Sketcher.Constraint("Vertical", 2),
    Sketcher.Constraint("Horizontal", 3),
    Sketcher.Constraint("Vertical", 4),
    Sketcher.Constraint("Horizontal", 5),
    Sketcher.Constraint("Vertical", 6),
    Sketcher.Constraint("Horizontal", 7),
    Sketcher.Constraint("Vertical", 8),
    Sketcher.Constraint("Horizontal", 9),
    Sketcher.Constraint("Vertical", 10),
    Sketcher.Constraint("Horizontal", 11),
    Sketcher.Constraint("Vertical", 12),
    Sketcher.Constraint("Horizontal", 13),
    Sketcher.Constraint("Vertical", 14),
    Sketcher.Constraint("Horizontal", 15),
    Sketcher.Constraint("Symmetric", 2, 2, 4, 2, -1, 1),
    Sketcher.Constraint("Symmetric", 0, 2, 6, 2, -1, 1),
    Sketcher.Constraint("Symmetric", 10, 2, 12, 2, -1, 1),
    Sketcher.Constraint("Symmetric", 8, 2, 14, 2, -1, 1),
    Sketcher.Constraint("Horizontal", 1, 2, 4, 2),
    Sketcher.Constraint("Vertical", 11, 2, 12, 2),
    Sketcher.Constraint("Equal", 7, 9),
    Sketcher.Constraint("Equal", 6, 8),
    Sketcher.Constraint("DistanceX", 1, 1, 1, 2, 10.0),
    Sketcher.Constraint("DistanceY", 0, 2, 0, 1, 5.6),
    Sketcher.Constraint("DistanceX", 1, 2, 4, 2, 25.0),
    Sketcher.Constraint("DistanceY", 1, 2, 8, 2, 13.0),
])
pocket3 = body.newObject("PartDesign::Pocket", "Pocket002")
pocket3.Profile = sketch5
pocket3.Length = 3

sketch6 = body.newObject("Sketcher::SketchObject", "Sketch005")
sketch6.AttachmentSupport = (doc.getObject("YZ_Plane"), [""])
sketch6.MapMode = "FlatFace"
sketch6.AttachmentOffset = App.Placement(App.Vector(0, 0, 6.5), App.Rotation())
sketch6.addGeometry([
    Part.LineSegment(App.Vector(-27, -7.5, 0), App.Vector(-35, -7.5, 0)),
    Part.LineSegment(App.Vector(-35, -7.5, 0), App.Vector(-35, 7.5, 0)),
    Part.LineSegment(App.Vector(-35, 7.5, 0), App.Vector(-27, 7.5, 0)),
    Part.LineSegment(App.Vector(-27, 7.5, 0), App.Vector(-27, -7.5, 0)),
], False)
sketch6.addConstraint([
    Sketcher.Constraint("Coincident", 0, 2, 1, 1),
    Sketcher.Constraint("Coincident", 1, 2, 2, 1),
    Sketcher.Constraint("Coincident", 2, 2, 3, 1),
    Sketcher.Constraint("Coincident", 3, 2, 0, 1),
    Sketcher.Constraint("Horizontal", 0),
    Sketcher.Constraint("Vertical", 1),
    Sketcher.Constraint("Horizontal", 2),
    Sketcher.Constraint("Vertical", 3),
    Sketcher.Constraint("DistanceX", 0, 2, 0, 1, 8.0),
    Sketcher.Constraint("DistanceY", 1, 1, 1, 2, 15.0),
    Sketcher.Constraint("DistanceX", 0, 2, -1, 1, 35.0),
    Sketcher.Constraint("DistanceY", 0, 2, -1, 1, 7.5),
])
pocket4 = body.newObject("PartDesign::Pocket", "Pocket003")
pocket4.Profile = sketch6
pocket4.Type = "ThroughAll"
pocket4.Reversed = True
doc.recompute()

fillet2 = body.newObject("PartDesign::Fillet", "Fillet001")
fillet2.Base = (pocket4, edges_at(pocket4, [
    (9, -27, -7.5),
    (9, -27, 7.5),
    (40, 4, 22.5),
    (-40, 4, 22.5),
    (-40, 4, -22.5),
    (40, 4, -22.5),
]))
fillet2.Radius = 2

doc.recompute()
